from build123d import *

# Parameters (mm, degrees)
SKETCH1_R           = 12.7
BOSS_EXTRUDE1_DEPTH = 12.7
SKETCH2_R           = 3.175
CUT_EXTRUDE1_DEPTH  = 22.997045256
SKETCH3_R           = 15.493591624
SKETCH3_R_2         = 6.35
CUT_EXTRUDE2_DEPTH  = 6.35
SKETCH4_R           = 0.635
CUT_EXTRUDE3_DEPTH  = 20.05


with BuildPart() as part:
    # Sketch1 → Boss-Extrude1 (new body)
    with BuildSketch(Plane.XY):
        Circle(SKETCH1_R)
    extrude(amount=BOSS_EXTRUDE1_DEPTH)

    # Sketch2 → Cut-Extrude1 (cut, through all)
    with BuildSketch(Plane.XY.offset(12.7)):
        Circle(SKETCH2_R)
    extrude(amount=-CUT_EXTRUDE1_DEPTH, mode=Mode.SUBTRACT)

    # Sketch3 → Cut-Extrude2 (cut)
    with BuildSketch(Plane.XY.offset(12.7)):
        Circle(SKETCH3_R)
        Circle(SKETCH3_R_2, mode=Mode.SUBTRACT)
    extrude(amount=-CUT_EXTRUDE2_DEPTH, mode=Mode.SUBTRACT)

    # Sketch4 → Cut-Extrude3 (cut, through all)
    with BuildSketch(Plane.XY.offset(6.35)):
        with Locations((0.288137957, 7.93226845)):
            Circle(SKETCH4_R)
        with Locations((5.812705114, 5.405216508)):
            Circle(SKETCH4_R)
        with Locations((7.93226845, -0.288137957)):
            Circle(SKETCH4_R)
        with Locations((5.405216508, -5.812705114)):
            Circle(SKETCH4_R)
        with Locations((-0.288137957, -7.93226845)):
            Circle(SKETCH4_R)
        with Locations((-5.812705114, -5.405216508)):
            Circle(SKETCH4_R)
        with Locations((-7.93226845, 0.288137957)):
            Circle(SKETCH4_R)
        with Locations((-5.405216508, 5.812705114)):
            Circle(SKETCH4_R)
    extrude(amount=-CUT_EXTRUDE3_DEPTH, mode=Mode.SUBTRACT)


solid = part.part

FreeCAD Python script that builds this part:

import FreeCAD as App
import Part
import Sketcher

V = App.Vector
Q = App.Units.Quantity

doc = App.newDocument("Part")
body = doc.addObject("PartDesign::Body", "Body")

sketch1 = body.newObject("Sketcher::SketchObject", "Sketch")
sketch1.AttachmentSupport = (doc.getObject("XY_Plane"), [""])
sketch1.MapMode = "FlatFace"
sketch1.addGeometry(Part.Circle(V(0, 0, 0), V(0, 0, 1), 13), False)
sketch1.addConstraint([
    Sketcher.Constraint("Coincident", 0, 3, -1, 1),
    Sketcher.Constraint("Diameter", 0, Q("1 in")),
])
pad1 = body.newObject("PartDesign::Pad", "Pad")
pad1.Profile = sketch1
pad1.Length = Q("0.5 in")

sketch2 = body.newObject("Sketcher::SketchObject", "Sketch001")
sketch2.AttachmentSupport = (doc.getObject("XY_Plane"), [""])
sketch2.MapMode = "FlatFace"
sketch2.AttachmentOffset = App.Placement(V(0, 0, 0.5 * 25.4), App.Rotation())
sketch2.addGeometry(Part.Circle(V(0, 0, 0), V(0, 0, 1), 3.2), False)
sketch2.addConstraint([
    Sketcher.Constraint("Coincident", 0, 3, -1, 1),
    Sketcher.Constraint("Diameter", 0, Q("0.25 in")),
])
pocket1 = body.newObject("PartDesign::Pocket", "Pocket")
pocket1.Profile = sketch2
pocket1.Type = "ThroughAll"

sketch3 = body.newObject("Sketcher::SketchObject", "Sketch002")
sketch3.AttachmentSupport = (doc.getObject("XY_Plane"), [""])
sketch3.MapMode = "FlatFace"
sketch3.AttachmentOffset = App.Placement(V(0, 0, 0.5 * 25.4), App.Rotation())
sketch3.addGeometry([
    Part.Circle(V(0, 0, 0), V(0, 0, 1), 15),
    Part.Circle(V(0, 0, 0), V(0, 0, 1), 6),
], False)
sketch3.addConstraint([
    Sketcher.Constraint("Coincident", 0, 3, -1, 1),
    Sketcher.Constraint("Coincident", 1, 3, -1, 1),
    Sketcher.Constraint("Diameter", 1, Q("0.5 in")),
    Sketcher.Constraint("Diameter", 0, Q("30.987183 mm")),
])
pocket2 = body.newObject("PartDesign::Pocket", "Pocket001")
pocket2.Profile = sketch3
pocket2.Length = Q("0.25 in")

sketch4 = body.newObject("Sketcher::SketchObject", "Sketch003")
sketch4.AttachmentSupport = (doc.getObject("XY_Plane"), [""])
sketch4.MapMode = "FlatFace"
sketch4.AttachmentOffset = App.Placement(V(0, 0, 0.25 * 25.4), App.Rotation())
sketch4.addGeometry([
    Part.Circle(V(0.3, 7.9, 0), V(0, 0, 1), 0.6),
    Part.Circle(V(5.8, 5.4, 0), V(0, 0, 1), 0.6),
    Part.Circle(V(7.9, -0.3, 0), V(0, 0, 1), 0.6),
    Part.Circle(V(5.4, -5.8, 0), V(0, 0, 1), 0.6),
    Part.Circle(V(-0.3, -7.9, 0), V(0, 0, 1), 0.6),
    Part.Circle(V(-5.8, -5.4, 0), V(0, 0, 1), 0.6),
    Part.Circle(V(-7.9, 0.3, 0), V(0, 0, 1), 0.6),
    Part.Circle(V(-5.4, 5.8, 0), V(0, 0, 1), 0.6),
], False)
sketch4.addConstraint([
    Sketcher.Constraint("Equal", 0, 1),
    Sketcher.Constraint("Equal", 1, 2),
    Sketcher.Constraint("Equal", 2, 3),
    Sketcher.Constraint("Equal", 3, 4),
    Sketcher.Constraint("Equal", 4, 5),
    Sketcher.Constraint("Equal", 5, 6),
    Sketcher.Constraint("Equal", 6, 7),
    Sketcher.Constraint("Symmetric", 0, 3, 4, 3, -1, 1),
    Sketcher.Constraint("Symmetric", 1, 3, 5, 3, -1, 1),
    Sketcher.Constraint("Symmetric", 2, 3, 6, 3, -1, 1),
    Sketcher.Constraint("Symmetric", 3, 3, 7, 3, -1, 1),
    Sketcher.Constraint("Diameter", 0, Q("0.05 in")),
    Sketcher.Constraint("DistanceY", -1, 1, 0, 3, Q("7.932268 mm")),
    Sketcher.Constraint("DistanceX", -1, 1, 2, 3, Q("7.932268 mm")),
    Sketcher.Constraint("DistanceY", 1, 3, 0, 3, Q("2.527052 mm")),
    Sketcher.Constraint("DistanceX", 0, 3, 2, 3, Q("7.64413 mm")),
    Sketcher.Constraint("DistanceX", 3, 3, 2, 3, Q("2.527052 mm")),
    Sketcher.Constraint("DistanceX", 3, 3, 1, 3, Q("0.407489 mm")),
    Sketcher.Constraint("DistanceY", 3, 3, 1, 3, Q("11.217922 mm")),
    Sketcher.Constraint("DistanceY", 4, 3, 2, 3, Q("7.64413 mm")),
])
pocket3 = body.newObject("PartDesign::Pocket", "Pocket002")
pocket3.Profile = sketch4
pocket3.Type = "ThroughAll"

doc.recompute()
